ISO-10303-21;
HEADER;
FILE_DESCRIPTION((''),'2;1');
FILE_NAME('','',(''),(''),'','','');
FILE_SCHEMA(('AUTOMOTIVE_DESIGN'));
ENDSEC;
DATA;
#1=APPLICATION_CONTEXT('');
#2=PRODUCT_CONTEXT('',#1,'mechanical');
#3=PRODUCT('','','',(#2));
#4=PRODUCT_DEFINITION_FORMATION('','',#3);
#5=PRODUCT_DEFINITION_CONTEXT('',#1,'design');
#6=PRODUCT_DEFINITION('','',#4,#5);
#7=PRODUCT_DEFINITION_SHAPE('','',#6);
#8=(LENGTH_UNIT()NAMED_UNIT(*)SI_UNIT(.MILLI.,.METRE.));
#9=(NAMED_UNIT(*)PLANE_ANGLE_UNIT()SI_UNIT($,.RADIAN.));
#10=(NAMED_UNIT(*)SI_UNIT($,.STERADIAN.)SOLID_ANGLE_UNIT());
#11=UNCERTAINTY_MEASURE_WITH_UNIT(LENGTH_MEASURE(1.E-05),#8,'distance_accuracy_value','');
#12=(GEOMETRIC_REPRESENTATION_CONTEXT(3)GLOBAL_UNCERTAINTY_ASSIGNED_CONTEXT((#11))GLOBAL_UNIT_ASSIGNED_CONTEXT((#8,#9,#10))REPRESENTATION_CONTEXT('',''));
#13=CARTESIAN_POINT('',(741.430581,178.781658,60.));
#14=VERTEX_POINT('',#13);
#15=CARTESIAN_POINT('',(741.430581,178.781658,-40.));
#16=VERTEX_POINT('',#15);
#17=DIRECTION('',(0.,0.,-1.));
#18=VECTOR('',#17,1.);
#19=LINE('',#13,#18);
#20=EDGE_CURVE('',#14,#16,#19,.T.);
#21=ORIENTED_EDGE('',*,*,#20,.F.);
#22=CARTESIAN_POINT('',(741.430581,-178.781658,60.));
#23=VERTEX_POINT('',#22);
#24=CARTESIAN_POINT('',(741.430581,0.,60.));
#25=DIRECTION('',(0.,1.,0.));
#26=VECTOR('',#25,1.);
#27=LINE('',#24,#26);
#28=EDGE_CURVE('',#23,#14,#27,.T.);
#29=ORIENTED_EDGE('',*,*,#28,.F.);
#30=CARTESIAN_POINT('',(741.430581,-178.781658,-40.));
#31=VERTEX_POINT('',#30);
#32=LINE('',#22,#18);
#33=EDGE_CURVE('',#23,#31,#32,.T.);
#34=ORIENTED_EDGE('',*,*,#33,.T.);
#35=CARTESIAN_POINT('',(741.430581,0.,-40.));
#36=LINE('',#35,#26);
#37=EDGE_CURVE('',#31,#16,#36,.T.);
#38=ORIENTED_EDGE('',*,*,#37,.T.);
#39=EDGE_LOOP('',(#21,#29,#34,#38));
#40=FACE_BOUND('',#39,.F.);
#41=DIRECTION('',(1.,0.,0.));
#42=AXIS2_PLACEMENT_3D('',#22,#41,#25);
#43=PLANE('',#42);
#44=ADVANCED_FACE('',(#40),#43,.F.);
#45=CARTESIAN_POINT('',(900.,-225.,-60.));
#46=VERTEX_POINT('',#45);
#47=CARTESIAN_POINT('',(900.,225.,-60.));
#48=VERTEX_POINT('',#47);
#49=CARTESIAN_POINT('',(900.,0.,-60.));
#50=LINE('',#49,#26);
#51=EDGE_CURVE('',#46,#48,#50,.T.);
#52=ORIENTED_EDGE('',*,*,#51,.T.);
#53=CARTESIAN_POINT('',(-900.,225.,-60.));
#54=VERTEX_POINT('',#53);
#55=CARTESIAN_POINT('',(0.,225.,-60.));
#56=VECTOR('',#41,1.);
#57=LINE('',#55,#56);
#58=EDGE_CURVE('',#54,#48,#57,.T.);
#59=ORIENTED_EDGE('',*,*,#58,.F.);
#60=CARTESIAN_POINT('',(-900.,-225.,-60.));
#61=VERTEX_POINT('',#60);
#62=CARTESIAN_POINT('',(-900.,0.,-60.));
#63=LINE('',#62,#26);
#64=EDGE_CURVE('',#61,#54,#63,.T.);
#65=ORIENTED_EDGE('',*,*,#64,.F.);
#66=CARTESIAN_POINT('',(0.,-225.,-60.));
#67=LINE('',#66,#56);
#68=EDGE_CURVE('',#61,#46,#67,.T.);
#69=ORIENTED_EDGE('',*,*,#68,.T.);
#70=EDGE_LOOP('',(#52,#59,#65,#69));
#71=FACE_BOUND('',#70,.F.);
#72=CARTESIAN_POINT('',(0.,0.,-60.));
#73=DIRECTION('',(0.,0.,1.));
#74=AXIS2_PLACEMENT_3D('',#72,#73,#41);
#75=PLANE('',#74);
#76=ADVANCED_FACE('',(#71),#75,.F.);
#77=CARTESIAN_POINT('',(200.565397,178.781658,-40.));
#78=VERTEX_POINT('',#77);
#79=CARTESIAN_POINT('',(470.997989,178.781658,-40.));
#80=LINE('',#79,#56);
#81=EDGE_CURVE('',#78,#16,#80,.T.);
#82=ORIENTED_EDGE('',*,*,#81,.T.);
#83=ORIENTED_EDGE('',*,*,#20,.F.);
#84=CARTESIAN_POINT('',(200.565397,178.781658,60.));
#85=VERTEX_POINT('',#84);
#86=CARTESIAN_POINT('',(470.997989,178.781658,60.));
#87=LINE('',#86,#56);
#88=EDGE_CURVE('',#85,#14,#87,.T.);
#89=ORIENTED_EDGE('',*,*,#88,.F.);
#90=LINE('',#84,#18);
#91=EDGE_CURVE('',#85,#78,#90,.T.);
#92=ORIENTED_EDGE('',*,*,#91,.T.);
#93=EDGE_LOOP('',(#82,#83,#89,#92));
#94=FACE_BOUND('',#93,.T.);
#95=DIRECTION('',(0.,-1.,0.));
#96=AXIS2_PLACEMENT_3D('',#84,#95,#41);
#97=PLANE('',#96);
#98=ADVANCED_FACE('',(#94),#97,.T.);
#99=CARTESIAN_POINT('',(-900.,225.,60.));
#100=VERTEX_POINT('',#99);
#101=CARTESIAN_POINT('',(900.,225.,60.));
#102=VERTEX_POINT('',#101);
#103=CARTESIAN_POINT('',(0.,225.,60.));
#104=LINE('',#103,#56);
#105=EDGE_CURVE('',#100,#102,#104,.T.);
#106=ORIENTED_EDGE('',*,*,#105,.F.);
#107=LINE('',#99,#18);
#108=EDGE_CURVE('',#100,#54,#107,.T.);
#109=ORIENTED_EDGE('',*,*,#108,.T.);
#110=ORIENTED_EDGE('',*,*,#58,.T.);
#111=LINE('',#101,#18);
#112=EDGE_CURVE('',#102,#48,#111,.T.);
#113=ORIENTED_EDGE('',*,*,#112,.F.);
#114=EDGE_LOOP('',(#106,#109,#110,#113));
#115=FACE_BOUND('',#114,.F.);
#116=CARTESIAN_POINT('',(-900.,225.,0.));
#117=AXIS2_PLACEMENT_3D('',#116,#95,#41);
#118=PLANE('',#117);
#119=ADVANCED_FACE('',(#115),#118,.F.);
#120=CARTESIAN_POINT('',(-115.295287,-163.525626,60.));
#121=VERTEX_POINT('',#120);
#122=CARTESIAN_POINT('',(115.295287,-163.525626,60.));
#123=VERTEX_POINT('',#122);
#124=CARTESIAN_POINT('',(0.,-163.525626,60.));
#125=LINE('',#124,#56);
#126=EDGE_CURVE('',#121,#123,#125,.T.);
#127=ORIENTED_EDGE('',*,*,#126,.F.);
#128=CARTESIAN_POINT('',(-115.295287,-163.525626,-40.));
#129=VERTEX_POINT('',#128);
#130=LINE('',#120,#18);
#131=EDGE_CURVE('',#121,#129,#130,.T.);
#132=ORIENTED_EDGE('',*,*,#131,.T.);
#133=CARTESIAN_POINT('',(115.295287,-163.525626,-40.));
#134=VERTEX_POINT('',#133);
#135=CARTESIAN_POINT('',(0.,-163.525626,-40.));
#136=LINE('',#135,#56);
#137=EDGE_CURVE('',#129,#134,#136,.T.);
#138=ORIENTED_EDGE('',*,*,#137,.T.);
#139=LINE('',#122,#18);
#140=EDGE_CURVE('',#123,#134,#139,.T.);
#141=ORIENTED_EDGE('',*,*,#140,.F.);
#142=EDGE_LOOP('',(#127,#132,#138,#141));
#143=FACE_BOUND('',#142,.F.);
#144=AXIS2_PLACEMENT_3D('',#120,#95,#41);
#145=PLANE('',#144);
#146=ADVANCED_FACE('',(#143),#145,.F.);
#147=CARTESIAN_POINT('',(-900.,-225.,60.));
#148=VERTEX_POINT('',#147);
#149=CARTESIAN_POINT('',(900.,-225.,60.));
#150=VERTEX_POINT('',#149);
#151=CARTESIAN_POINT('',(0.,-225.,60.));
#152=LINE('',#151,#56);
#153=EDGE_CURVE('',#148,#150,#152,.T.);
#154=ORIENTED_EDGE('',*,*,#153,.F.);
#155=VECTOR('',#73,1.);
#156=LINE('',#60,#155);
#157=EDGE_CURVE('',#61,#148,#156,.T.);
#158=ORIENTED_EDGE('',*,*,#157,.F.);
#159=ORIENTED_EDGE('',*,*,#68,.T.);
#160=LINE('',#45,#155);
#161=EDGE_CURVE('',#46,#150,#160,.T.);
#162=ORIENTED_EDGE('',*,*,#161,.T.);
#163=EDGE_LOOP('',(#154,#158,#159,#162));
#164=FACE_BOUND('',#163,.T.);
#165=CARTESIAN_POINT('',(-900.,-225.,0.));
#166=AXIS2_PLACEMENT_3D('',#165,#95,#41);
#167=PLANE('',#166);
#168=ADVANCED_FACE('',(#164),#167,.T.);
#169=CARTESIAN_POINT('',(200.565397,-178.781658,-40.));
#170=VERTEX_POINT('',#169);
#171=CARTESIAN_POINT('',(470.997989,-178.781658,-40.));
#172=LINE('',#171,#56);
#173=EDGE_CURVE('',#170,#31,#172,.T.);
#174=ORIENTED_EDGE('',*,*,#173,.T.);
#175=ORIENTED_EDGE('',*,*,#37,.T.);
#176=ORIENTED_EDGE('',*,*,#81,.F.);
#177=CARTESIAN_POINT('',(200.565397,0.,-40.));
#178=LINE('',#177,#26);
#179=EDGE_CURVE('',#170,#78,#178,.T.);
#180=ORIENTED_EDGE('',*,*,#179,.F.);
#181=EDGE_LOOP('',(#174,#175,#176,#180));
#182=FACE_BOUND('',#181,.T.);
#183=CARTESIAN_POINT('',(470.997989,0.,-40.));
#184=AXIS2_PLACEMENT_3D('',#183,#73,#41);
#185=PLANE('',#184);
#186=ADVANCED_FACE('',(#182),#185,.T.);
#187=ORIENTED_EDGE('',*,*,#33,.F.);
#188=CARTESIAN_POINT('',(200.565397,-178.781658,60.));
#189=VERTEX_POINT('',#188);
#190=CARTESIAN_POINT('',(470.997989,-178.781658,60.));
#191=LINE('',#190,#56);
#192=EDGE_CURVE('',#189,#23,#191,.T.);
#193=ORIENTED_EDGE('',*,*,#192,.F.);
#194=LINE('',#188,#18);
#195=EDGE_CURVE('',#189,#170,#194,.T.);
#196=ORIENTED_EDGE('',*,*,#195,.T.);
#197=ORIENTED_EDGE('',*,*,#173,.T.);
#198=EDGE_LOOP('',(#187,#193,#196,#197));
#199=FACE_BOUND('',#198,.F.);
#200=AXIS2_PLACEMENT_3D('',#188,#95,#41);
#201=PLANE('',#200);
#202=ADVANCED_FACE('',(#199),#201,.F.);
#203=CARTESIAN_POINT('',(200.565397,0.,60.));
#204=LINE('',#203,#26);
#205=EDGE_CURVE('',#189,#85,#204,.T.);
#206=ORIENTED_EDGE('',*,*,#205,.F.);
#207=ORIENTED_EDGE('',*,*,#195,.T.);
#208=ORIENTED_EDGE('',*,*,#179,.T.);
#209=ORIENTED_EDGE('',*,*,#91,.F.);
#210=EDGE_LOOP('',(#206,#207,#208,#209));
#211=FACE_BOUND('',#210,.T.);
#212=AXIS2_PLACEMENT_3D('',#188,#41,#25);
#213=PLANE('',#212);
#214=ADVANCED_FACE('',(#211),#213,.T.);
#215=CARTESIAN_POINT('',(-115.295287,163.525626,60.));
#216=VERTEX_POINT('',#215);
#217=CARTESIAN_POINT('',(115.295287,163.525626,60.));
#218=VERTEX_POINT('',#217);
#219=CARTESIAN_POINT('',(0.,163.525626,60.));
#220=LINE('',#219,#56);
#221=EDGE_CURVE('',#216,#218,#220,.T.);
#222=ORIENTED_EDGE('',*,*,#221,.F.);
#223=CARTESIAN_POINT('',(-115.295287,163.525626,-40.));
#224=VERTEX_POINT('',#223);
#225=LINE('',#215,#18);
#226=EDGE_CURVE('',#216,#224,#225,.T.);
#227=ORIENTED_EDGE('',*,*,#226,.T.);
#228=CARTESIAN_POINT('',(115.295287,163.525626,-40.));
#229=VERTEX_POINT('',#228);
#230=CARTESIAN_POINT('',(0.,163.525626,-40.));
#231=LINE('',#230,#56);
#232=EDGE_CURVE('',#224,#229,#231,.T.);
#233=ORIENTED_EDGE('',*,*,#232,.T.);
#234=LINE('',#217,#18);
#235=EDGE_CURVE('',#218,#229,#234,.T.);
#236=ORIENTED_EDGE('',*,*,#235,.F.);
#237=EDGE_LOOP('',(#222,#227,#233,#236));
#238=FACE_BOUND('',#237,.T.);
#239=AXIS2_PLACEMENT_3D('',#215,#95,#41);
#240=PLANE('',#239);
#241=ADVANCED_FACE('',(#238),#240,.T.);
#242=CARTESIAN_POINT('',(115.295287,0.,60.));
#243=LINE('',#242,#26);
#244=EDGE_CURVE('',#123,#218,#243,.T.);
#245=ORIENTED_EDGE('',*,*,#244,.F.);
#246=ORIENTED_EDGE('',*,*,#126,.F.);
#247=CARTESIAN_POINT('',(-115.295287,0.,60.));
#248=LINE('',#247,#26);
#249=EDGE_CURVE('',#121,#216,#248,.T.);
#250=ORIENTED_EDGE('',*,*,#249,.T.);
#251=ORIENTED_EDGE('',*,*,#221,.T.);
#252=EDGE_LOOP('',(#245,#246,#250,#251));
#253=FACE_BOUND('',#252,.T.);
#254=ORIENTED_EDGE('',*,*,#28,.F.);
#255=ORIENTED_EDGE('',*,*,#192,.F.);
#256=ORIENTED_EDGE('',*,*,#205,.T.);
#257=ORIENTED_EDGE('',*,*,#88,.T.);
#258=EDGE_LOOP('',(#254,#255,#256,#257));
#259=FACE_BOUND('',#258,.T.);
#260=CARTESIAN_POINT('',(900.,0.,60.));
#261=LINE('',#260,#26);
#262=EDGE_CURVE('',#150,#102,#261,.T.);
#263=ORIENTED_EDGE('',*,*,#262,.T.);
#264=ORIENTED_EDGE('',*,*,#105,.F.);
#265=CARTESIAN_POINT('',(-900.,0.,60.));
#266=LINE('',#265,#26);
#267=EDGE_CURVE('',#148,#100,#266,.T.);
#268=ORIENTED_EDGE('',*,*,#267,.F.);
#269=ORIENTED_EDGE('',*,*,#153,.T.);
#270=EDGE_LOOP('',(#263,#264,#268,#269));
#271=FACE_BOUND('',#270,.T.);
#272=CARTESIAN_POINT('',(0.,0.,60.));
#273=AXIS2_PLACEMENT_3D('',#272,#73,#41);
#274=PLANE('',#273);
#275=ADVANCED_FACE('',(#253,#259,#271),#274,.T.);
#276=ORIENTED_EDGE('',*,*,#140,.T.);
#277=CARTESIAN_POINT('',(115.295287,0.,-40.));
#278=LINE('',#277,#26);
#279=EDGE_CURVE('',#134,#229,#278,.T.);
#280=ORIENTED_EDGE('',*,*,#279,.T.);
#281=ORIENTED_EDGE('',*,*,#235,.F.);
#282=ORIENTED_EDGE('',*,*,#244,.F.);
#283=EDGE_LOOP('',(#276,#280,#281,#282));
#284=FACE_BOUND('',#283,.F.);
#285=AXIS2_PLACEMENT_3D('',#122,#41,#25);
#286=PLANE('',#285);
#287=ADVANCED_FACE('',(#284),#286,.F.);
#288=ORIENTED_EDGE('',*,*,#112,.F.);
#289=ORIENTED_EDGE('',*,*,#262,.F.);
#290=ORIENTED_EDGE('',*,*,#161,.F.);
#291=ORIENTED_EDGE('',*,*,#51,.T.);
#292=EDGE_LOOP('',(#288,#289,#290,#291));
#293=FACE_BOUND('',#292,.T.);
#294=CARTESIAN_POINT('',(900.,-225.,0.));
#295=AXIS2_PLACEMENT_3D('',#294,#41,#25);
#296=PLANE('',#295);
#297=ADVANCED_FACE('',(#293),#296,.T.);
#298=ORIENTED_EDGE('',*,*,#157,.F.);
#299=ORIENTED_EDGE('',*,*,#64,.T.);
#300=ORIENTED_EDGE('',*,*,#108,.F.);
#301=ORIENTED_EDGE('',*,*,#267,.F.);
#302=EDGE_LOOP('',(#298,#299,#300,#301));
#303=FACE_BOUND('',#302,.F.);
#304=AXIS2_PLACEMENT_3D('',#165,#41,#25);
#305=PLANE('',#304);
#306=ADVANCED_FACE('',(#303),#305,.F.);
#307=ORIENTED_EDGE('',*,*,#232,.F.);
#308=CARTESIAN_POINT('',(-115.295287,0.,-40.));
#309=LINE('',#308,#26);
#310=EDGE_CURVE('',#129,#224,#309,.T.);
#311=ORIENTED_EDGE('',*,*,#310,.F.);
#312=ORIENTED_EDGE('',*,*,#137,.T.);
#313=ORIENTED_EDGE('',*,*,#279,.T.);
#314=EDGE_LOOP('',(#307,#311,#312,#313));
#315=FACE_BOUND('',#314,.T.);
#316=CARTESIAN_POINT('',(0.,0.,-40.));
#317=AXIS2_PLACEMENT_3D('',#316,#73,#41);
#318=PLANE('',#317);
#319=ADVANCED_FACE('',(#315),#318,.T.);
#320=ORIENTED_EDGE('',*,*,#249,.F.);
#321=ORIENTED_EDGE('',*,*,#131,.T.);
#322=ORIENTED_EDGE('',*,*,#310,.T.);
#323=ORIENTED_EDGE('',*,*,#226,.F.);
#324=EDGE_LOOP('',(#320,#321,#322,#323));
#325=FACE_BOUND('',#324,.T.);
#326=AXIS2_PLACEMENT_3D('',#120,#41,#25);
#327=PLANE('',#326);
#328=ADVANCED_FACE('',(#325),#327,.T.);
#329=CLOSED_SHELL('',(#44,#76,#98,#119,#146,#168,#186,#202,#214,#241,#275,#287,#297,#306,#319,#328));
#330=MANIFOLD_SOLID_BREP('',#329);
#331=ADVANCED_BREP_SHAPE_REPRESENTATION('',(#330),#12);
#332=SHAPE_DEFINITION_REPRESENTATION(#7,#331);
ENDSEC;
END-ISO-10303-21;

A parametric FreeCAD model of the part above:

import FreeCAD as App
import Part
import Sketcher

V = App.Vector

doc = App.newDocument("Part")
body = doc.addObject("PartDesign::Body", "Body")

sketch1 = body.newObject("Sketcher::SketchObject", "Sketch")
sketch1.AttachmentSupport = (doc.getObject("XY_Plane"), [""])
sketch1.MapMode = "FlatFace"
sketch1.addGeometry(Part.LineSegment(V(-900, 225, 0), V(-900, -225, 0)), False)
sketch1.addGeometry(Part.LineSegment(V(-900, -225, 0), V(900, -225, 0)), False)
sketch1.addGeometry(Part.LineSegment(V(900, -225, 0), V(900, 225, 0)), False)
sketch1.addGeometry(Part.LineSegment(V(900, 225, 0), V(-900, 225, 0)), False)
sketch1.addConstraint(Sketcher.Constraint("Coincident", 0, 2, 1, 1))
sketch1.addConstraint(Sketcher.Constraint("Coincident", 1, 2, 2, 1))
sketch1.addConstraint(Sketcher.Constraint("Coincident", 2, 2, 3, 1))
sketch1.addConstraint(Sketcher.Constraint("Coincident", 3, 2, 0, 1))
sketch1.addConstraint(Sketcher.Constraint("Vertical", 0))
sketch1.addConstraint(Sketcher.Constraint("Horizontal", 1))
sketch1.addConstraint(Sketcher.Constraint("Vertical", 2))
sketch1.addConstraint(Sketcher.Constraint("Horizontal", 3))
sketch1.addConstraint(Sketcher.Constraint("Symmetric", 0, 2, 2, 2, -1, 1))
sketch1.addConstraint(Sketcher.Constraint("DistanceX", 1, 1, 1, 2, 1800.0))
sketch1.addConstraint(Sketcher.Constraint("DistanceY", 0, 2, 0, 1, 450.0))
pad1 = body.newObject("PartDesign::Pad", "Pad")
pad1.Profile = sketch1
pad1.Length = 120
pad1.Midplane = True

sketch2 = body.newObject("Sketcher::SketchObject", "Sketch001")
sketch2.AttachmentSupport = (doc.getObject("XY_Plane"), [""])
sketch2.MapMode = "FlatFace"
sketch2.AttachmentOffset = App.Placement(V(0, 0, 60), App.Rotation())
sketch2.addGeometry(Part.LineSegment(V(-115, 164, 0), V(-115, -164, 0)), False)
sketch2.addGeometry(Part.LineSegment(V(-115, -164, 0), V(115, -164, 0)), False)
sketch2.addGeometry(Part.LineSegment(V(115, -164, 0), V(115, 164, 0)), False)
sketch2.addGeometry(Part.LineSegment(V(115, 164, 0), V(-115, 164, 0)), False)
sketch2.addGeometry(Part.LineSegment(V(201, 179, 0), V(201, -179, 0)), False)
sketch2.addGeometry(Part.LineSegment(V(201, -179, 0), V(741, -179, 0)), False)
sketch2.addGeometry(Part.LineSegment(V(741, -179, 0), V(741, 179, 0)), False)
sketch2.addGeometry(Part.LineSegment(V(741, 179, 0), V(201, 179, 0)), False)
sketch2.addConstraint(Sketcher.Constraint("Coincident", 0, 2, 1, 1))
sketch2.addConstraint(Sketcher.Constraint("Coincident", 1, 2, 2, 1))
sketch2.addConstraint(Sketcher.Constraint("Coincident", 2, 2, 3, 1))
sketch2.addConstraint(Sketcher.Constraint("Coincident", 3, 2, 0, 1))
sketch2.addConstraint(Sketcher.Constraint("Coincident", 4, 2, 5, 1))
sketch2.addConstraint(Sketcher.Constraint("Coincident", 5, 2, 6, 1))
sketch2.addConstraint(Sketcher.Constraint("Coincident", 6, 2, 7, 1))
sketch2.addConstraint(Sketcher.Constraint("Coincident", 7, 2, 4, 1))
sketch2.addConstraint(Sketcher.Constraint("Vertical", 0))
sketch2.addConstraint(Sketcher.Constraint("Horizontal", 1))
sketch2.addConstraint(Sketcher.Constraint("Vertical", 2))
sketch2.addConstraint(Sketcher.Constraint("Horizontal", 3))
sketch2.addConstraint(Sketcher.Constraint("Vertical", 4))
sketch2.addConstraint(Sketcher.Constraint("Horizontal", 5))
sketch2.addConstraint(Sketcher.Constraint("Vertical", 6))
sketch2.addConstraint(Sketcher.Constraint("Horizontal", 7))
sketch2.addConstraint(Sketcher.Constraint("Symmetric", 0, 2, 2, 2, -1, 1))
sketch2.addConstraint(Sketcher.Constraint("DistanceY", 0, 2, 0, 1, 327.051252))
sketch2.addConstraint(Sketcher.Constraint("DistanceX", 1, 1, 1, 2, 230.590574))
sketch2.addConstraint(Sketcher.Constraint("DistanceX", 5, 1, 5, 2, 540.865183))
sketch2.addConstraint(Sketcher.Constraint("DistanceY", 4, 2, 4, 1, 357.563316))
sketch2.addConstraint(Sketcher.Constraint("DistanceY", 4, 2, -1, 1, 178.781658))
sketch2.addConstraint(Sketcher.Constraint("DistanceX", -1, 1, 5, 2, 741.430581))
pocket1 = body.newObject("PartDesign::Pocket", "Pocket")
pocket1.Profile = sketch2
pocket1.Length = 100

doc.recompute()
